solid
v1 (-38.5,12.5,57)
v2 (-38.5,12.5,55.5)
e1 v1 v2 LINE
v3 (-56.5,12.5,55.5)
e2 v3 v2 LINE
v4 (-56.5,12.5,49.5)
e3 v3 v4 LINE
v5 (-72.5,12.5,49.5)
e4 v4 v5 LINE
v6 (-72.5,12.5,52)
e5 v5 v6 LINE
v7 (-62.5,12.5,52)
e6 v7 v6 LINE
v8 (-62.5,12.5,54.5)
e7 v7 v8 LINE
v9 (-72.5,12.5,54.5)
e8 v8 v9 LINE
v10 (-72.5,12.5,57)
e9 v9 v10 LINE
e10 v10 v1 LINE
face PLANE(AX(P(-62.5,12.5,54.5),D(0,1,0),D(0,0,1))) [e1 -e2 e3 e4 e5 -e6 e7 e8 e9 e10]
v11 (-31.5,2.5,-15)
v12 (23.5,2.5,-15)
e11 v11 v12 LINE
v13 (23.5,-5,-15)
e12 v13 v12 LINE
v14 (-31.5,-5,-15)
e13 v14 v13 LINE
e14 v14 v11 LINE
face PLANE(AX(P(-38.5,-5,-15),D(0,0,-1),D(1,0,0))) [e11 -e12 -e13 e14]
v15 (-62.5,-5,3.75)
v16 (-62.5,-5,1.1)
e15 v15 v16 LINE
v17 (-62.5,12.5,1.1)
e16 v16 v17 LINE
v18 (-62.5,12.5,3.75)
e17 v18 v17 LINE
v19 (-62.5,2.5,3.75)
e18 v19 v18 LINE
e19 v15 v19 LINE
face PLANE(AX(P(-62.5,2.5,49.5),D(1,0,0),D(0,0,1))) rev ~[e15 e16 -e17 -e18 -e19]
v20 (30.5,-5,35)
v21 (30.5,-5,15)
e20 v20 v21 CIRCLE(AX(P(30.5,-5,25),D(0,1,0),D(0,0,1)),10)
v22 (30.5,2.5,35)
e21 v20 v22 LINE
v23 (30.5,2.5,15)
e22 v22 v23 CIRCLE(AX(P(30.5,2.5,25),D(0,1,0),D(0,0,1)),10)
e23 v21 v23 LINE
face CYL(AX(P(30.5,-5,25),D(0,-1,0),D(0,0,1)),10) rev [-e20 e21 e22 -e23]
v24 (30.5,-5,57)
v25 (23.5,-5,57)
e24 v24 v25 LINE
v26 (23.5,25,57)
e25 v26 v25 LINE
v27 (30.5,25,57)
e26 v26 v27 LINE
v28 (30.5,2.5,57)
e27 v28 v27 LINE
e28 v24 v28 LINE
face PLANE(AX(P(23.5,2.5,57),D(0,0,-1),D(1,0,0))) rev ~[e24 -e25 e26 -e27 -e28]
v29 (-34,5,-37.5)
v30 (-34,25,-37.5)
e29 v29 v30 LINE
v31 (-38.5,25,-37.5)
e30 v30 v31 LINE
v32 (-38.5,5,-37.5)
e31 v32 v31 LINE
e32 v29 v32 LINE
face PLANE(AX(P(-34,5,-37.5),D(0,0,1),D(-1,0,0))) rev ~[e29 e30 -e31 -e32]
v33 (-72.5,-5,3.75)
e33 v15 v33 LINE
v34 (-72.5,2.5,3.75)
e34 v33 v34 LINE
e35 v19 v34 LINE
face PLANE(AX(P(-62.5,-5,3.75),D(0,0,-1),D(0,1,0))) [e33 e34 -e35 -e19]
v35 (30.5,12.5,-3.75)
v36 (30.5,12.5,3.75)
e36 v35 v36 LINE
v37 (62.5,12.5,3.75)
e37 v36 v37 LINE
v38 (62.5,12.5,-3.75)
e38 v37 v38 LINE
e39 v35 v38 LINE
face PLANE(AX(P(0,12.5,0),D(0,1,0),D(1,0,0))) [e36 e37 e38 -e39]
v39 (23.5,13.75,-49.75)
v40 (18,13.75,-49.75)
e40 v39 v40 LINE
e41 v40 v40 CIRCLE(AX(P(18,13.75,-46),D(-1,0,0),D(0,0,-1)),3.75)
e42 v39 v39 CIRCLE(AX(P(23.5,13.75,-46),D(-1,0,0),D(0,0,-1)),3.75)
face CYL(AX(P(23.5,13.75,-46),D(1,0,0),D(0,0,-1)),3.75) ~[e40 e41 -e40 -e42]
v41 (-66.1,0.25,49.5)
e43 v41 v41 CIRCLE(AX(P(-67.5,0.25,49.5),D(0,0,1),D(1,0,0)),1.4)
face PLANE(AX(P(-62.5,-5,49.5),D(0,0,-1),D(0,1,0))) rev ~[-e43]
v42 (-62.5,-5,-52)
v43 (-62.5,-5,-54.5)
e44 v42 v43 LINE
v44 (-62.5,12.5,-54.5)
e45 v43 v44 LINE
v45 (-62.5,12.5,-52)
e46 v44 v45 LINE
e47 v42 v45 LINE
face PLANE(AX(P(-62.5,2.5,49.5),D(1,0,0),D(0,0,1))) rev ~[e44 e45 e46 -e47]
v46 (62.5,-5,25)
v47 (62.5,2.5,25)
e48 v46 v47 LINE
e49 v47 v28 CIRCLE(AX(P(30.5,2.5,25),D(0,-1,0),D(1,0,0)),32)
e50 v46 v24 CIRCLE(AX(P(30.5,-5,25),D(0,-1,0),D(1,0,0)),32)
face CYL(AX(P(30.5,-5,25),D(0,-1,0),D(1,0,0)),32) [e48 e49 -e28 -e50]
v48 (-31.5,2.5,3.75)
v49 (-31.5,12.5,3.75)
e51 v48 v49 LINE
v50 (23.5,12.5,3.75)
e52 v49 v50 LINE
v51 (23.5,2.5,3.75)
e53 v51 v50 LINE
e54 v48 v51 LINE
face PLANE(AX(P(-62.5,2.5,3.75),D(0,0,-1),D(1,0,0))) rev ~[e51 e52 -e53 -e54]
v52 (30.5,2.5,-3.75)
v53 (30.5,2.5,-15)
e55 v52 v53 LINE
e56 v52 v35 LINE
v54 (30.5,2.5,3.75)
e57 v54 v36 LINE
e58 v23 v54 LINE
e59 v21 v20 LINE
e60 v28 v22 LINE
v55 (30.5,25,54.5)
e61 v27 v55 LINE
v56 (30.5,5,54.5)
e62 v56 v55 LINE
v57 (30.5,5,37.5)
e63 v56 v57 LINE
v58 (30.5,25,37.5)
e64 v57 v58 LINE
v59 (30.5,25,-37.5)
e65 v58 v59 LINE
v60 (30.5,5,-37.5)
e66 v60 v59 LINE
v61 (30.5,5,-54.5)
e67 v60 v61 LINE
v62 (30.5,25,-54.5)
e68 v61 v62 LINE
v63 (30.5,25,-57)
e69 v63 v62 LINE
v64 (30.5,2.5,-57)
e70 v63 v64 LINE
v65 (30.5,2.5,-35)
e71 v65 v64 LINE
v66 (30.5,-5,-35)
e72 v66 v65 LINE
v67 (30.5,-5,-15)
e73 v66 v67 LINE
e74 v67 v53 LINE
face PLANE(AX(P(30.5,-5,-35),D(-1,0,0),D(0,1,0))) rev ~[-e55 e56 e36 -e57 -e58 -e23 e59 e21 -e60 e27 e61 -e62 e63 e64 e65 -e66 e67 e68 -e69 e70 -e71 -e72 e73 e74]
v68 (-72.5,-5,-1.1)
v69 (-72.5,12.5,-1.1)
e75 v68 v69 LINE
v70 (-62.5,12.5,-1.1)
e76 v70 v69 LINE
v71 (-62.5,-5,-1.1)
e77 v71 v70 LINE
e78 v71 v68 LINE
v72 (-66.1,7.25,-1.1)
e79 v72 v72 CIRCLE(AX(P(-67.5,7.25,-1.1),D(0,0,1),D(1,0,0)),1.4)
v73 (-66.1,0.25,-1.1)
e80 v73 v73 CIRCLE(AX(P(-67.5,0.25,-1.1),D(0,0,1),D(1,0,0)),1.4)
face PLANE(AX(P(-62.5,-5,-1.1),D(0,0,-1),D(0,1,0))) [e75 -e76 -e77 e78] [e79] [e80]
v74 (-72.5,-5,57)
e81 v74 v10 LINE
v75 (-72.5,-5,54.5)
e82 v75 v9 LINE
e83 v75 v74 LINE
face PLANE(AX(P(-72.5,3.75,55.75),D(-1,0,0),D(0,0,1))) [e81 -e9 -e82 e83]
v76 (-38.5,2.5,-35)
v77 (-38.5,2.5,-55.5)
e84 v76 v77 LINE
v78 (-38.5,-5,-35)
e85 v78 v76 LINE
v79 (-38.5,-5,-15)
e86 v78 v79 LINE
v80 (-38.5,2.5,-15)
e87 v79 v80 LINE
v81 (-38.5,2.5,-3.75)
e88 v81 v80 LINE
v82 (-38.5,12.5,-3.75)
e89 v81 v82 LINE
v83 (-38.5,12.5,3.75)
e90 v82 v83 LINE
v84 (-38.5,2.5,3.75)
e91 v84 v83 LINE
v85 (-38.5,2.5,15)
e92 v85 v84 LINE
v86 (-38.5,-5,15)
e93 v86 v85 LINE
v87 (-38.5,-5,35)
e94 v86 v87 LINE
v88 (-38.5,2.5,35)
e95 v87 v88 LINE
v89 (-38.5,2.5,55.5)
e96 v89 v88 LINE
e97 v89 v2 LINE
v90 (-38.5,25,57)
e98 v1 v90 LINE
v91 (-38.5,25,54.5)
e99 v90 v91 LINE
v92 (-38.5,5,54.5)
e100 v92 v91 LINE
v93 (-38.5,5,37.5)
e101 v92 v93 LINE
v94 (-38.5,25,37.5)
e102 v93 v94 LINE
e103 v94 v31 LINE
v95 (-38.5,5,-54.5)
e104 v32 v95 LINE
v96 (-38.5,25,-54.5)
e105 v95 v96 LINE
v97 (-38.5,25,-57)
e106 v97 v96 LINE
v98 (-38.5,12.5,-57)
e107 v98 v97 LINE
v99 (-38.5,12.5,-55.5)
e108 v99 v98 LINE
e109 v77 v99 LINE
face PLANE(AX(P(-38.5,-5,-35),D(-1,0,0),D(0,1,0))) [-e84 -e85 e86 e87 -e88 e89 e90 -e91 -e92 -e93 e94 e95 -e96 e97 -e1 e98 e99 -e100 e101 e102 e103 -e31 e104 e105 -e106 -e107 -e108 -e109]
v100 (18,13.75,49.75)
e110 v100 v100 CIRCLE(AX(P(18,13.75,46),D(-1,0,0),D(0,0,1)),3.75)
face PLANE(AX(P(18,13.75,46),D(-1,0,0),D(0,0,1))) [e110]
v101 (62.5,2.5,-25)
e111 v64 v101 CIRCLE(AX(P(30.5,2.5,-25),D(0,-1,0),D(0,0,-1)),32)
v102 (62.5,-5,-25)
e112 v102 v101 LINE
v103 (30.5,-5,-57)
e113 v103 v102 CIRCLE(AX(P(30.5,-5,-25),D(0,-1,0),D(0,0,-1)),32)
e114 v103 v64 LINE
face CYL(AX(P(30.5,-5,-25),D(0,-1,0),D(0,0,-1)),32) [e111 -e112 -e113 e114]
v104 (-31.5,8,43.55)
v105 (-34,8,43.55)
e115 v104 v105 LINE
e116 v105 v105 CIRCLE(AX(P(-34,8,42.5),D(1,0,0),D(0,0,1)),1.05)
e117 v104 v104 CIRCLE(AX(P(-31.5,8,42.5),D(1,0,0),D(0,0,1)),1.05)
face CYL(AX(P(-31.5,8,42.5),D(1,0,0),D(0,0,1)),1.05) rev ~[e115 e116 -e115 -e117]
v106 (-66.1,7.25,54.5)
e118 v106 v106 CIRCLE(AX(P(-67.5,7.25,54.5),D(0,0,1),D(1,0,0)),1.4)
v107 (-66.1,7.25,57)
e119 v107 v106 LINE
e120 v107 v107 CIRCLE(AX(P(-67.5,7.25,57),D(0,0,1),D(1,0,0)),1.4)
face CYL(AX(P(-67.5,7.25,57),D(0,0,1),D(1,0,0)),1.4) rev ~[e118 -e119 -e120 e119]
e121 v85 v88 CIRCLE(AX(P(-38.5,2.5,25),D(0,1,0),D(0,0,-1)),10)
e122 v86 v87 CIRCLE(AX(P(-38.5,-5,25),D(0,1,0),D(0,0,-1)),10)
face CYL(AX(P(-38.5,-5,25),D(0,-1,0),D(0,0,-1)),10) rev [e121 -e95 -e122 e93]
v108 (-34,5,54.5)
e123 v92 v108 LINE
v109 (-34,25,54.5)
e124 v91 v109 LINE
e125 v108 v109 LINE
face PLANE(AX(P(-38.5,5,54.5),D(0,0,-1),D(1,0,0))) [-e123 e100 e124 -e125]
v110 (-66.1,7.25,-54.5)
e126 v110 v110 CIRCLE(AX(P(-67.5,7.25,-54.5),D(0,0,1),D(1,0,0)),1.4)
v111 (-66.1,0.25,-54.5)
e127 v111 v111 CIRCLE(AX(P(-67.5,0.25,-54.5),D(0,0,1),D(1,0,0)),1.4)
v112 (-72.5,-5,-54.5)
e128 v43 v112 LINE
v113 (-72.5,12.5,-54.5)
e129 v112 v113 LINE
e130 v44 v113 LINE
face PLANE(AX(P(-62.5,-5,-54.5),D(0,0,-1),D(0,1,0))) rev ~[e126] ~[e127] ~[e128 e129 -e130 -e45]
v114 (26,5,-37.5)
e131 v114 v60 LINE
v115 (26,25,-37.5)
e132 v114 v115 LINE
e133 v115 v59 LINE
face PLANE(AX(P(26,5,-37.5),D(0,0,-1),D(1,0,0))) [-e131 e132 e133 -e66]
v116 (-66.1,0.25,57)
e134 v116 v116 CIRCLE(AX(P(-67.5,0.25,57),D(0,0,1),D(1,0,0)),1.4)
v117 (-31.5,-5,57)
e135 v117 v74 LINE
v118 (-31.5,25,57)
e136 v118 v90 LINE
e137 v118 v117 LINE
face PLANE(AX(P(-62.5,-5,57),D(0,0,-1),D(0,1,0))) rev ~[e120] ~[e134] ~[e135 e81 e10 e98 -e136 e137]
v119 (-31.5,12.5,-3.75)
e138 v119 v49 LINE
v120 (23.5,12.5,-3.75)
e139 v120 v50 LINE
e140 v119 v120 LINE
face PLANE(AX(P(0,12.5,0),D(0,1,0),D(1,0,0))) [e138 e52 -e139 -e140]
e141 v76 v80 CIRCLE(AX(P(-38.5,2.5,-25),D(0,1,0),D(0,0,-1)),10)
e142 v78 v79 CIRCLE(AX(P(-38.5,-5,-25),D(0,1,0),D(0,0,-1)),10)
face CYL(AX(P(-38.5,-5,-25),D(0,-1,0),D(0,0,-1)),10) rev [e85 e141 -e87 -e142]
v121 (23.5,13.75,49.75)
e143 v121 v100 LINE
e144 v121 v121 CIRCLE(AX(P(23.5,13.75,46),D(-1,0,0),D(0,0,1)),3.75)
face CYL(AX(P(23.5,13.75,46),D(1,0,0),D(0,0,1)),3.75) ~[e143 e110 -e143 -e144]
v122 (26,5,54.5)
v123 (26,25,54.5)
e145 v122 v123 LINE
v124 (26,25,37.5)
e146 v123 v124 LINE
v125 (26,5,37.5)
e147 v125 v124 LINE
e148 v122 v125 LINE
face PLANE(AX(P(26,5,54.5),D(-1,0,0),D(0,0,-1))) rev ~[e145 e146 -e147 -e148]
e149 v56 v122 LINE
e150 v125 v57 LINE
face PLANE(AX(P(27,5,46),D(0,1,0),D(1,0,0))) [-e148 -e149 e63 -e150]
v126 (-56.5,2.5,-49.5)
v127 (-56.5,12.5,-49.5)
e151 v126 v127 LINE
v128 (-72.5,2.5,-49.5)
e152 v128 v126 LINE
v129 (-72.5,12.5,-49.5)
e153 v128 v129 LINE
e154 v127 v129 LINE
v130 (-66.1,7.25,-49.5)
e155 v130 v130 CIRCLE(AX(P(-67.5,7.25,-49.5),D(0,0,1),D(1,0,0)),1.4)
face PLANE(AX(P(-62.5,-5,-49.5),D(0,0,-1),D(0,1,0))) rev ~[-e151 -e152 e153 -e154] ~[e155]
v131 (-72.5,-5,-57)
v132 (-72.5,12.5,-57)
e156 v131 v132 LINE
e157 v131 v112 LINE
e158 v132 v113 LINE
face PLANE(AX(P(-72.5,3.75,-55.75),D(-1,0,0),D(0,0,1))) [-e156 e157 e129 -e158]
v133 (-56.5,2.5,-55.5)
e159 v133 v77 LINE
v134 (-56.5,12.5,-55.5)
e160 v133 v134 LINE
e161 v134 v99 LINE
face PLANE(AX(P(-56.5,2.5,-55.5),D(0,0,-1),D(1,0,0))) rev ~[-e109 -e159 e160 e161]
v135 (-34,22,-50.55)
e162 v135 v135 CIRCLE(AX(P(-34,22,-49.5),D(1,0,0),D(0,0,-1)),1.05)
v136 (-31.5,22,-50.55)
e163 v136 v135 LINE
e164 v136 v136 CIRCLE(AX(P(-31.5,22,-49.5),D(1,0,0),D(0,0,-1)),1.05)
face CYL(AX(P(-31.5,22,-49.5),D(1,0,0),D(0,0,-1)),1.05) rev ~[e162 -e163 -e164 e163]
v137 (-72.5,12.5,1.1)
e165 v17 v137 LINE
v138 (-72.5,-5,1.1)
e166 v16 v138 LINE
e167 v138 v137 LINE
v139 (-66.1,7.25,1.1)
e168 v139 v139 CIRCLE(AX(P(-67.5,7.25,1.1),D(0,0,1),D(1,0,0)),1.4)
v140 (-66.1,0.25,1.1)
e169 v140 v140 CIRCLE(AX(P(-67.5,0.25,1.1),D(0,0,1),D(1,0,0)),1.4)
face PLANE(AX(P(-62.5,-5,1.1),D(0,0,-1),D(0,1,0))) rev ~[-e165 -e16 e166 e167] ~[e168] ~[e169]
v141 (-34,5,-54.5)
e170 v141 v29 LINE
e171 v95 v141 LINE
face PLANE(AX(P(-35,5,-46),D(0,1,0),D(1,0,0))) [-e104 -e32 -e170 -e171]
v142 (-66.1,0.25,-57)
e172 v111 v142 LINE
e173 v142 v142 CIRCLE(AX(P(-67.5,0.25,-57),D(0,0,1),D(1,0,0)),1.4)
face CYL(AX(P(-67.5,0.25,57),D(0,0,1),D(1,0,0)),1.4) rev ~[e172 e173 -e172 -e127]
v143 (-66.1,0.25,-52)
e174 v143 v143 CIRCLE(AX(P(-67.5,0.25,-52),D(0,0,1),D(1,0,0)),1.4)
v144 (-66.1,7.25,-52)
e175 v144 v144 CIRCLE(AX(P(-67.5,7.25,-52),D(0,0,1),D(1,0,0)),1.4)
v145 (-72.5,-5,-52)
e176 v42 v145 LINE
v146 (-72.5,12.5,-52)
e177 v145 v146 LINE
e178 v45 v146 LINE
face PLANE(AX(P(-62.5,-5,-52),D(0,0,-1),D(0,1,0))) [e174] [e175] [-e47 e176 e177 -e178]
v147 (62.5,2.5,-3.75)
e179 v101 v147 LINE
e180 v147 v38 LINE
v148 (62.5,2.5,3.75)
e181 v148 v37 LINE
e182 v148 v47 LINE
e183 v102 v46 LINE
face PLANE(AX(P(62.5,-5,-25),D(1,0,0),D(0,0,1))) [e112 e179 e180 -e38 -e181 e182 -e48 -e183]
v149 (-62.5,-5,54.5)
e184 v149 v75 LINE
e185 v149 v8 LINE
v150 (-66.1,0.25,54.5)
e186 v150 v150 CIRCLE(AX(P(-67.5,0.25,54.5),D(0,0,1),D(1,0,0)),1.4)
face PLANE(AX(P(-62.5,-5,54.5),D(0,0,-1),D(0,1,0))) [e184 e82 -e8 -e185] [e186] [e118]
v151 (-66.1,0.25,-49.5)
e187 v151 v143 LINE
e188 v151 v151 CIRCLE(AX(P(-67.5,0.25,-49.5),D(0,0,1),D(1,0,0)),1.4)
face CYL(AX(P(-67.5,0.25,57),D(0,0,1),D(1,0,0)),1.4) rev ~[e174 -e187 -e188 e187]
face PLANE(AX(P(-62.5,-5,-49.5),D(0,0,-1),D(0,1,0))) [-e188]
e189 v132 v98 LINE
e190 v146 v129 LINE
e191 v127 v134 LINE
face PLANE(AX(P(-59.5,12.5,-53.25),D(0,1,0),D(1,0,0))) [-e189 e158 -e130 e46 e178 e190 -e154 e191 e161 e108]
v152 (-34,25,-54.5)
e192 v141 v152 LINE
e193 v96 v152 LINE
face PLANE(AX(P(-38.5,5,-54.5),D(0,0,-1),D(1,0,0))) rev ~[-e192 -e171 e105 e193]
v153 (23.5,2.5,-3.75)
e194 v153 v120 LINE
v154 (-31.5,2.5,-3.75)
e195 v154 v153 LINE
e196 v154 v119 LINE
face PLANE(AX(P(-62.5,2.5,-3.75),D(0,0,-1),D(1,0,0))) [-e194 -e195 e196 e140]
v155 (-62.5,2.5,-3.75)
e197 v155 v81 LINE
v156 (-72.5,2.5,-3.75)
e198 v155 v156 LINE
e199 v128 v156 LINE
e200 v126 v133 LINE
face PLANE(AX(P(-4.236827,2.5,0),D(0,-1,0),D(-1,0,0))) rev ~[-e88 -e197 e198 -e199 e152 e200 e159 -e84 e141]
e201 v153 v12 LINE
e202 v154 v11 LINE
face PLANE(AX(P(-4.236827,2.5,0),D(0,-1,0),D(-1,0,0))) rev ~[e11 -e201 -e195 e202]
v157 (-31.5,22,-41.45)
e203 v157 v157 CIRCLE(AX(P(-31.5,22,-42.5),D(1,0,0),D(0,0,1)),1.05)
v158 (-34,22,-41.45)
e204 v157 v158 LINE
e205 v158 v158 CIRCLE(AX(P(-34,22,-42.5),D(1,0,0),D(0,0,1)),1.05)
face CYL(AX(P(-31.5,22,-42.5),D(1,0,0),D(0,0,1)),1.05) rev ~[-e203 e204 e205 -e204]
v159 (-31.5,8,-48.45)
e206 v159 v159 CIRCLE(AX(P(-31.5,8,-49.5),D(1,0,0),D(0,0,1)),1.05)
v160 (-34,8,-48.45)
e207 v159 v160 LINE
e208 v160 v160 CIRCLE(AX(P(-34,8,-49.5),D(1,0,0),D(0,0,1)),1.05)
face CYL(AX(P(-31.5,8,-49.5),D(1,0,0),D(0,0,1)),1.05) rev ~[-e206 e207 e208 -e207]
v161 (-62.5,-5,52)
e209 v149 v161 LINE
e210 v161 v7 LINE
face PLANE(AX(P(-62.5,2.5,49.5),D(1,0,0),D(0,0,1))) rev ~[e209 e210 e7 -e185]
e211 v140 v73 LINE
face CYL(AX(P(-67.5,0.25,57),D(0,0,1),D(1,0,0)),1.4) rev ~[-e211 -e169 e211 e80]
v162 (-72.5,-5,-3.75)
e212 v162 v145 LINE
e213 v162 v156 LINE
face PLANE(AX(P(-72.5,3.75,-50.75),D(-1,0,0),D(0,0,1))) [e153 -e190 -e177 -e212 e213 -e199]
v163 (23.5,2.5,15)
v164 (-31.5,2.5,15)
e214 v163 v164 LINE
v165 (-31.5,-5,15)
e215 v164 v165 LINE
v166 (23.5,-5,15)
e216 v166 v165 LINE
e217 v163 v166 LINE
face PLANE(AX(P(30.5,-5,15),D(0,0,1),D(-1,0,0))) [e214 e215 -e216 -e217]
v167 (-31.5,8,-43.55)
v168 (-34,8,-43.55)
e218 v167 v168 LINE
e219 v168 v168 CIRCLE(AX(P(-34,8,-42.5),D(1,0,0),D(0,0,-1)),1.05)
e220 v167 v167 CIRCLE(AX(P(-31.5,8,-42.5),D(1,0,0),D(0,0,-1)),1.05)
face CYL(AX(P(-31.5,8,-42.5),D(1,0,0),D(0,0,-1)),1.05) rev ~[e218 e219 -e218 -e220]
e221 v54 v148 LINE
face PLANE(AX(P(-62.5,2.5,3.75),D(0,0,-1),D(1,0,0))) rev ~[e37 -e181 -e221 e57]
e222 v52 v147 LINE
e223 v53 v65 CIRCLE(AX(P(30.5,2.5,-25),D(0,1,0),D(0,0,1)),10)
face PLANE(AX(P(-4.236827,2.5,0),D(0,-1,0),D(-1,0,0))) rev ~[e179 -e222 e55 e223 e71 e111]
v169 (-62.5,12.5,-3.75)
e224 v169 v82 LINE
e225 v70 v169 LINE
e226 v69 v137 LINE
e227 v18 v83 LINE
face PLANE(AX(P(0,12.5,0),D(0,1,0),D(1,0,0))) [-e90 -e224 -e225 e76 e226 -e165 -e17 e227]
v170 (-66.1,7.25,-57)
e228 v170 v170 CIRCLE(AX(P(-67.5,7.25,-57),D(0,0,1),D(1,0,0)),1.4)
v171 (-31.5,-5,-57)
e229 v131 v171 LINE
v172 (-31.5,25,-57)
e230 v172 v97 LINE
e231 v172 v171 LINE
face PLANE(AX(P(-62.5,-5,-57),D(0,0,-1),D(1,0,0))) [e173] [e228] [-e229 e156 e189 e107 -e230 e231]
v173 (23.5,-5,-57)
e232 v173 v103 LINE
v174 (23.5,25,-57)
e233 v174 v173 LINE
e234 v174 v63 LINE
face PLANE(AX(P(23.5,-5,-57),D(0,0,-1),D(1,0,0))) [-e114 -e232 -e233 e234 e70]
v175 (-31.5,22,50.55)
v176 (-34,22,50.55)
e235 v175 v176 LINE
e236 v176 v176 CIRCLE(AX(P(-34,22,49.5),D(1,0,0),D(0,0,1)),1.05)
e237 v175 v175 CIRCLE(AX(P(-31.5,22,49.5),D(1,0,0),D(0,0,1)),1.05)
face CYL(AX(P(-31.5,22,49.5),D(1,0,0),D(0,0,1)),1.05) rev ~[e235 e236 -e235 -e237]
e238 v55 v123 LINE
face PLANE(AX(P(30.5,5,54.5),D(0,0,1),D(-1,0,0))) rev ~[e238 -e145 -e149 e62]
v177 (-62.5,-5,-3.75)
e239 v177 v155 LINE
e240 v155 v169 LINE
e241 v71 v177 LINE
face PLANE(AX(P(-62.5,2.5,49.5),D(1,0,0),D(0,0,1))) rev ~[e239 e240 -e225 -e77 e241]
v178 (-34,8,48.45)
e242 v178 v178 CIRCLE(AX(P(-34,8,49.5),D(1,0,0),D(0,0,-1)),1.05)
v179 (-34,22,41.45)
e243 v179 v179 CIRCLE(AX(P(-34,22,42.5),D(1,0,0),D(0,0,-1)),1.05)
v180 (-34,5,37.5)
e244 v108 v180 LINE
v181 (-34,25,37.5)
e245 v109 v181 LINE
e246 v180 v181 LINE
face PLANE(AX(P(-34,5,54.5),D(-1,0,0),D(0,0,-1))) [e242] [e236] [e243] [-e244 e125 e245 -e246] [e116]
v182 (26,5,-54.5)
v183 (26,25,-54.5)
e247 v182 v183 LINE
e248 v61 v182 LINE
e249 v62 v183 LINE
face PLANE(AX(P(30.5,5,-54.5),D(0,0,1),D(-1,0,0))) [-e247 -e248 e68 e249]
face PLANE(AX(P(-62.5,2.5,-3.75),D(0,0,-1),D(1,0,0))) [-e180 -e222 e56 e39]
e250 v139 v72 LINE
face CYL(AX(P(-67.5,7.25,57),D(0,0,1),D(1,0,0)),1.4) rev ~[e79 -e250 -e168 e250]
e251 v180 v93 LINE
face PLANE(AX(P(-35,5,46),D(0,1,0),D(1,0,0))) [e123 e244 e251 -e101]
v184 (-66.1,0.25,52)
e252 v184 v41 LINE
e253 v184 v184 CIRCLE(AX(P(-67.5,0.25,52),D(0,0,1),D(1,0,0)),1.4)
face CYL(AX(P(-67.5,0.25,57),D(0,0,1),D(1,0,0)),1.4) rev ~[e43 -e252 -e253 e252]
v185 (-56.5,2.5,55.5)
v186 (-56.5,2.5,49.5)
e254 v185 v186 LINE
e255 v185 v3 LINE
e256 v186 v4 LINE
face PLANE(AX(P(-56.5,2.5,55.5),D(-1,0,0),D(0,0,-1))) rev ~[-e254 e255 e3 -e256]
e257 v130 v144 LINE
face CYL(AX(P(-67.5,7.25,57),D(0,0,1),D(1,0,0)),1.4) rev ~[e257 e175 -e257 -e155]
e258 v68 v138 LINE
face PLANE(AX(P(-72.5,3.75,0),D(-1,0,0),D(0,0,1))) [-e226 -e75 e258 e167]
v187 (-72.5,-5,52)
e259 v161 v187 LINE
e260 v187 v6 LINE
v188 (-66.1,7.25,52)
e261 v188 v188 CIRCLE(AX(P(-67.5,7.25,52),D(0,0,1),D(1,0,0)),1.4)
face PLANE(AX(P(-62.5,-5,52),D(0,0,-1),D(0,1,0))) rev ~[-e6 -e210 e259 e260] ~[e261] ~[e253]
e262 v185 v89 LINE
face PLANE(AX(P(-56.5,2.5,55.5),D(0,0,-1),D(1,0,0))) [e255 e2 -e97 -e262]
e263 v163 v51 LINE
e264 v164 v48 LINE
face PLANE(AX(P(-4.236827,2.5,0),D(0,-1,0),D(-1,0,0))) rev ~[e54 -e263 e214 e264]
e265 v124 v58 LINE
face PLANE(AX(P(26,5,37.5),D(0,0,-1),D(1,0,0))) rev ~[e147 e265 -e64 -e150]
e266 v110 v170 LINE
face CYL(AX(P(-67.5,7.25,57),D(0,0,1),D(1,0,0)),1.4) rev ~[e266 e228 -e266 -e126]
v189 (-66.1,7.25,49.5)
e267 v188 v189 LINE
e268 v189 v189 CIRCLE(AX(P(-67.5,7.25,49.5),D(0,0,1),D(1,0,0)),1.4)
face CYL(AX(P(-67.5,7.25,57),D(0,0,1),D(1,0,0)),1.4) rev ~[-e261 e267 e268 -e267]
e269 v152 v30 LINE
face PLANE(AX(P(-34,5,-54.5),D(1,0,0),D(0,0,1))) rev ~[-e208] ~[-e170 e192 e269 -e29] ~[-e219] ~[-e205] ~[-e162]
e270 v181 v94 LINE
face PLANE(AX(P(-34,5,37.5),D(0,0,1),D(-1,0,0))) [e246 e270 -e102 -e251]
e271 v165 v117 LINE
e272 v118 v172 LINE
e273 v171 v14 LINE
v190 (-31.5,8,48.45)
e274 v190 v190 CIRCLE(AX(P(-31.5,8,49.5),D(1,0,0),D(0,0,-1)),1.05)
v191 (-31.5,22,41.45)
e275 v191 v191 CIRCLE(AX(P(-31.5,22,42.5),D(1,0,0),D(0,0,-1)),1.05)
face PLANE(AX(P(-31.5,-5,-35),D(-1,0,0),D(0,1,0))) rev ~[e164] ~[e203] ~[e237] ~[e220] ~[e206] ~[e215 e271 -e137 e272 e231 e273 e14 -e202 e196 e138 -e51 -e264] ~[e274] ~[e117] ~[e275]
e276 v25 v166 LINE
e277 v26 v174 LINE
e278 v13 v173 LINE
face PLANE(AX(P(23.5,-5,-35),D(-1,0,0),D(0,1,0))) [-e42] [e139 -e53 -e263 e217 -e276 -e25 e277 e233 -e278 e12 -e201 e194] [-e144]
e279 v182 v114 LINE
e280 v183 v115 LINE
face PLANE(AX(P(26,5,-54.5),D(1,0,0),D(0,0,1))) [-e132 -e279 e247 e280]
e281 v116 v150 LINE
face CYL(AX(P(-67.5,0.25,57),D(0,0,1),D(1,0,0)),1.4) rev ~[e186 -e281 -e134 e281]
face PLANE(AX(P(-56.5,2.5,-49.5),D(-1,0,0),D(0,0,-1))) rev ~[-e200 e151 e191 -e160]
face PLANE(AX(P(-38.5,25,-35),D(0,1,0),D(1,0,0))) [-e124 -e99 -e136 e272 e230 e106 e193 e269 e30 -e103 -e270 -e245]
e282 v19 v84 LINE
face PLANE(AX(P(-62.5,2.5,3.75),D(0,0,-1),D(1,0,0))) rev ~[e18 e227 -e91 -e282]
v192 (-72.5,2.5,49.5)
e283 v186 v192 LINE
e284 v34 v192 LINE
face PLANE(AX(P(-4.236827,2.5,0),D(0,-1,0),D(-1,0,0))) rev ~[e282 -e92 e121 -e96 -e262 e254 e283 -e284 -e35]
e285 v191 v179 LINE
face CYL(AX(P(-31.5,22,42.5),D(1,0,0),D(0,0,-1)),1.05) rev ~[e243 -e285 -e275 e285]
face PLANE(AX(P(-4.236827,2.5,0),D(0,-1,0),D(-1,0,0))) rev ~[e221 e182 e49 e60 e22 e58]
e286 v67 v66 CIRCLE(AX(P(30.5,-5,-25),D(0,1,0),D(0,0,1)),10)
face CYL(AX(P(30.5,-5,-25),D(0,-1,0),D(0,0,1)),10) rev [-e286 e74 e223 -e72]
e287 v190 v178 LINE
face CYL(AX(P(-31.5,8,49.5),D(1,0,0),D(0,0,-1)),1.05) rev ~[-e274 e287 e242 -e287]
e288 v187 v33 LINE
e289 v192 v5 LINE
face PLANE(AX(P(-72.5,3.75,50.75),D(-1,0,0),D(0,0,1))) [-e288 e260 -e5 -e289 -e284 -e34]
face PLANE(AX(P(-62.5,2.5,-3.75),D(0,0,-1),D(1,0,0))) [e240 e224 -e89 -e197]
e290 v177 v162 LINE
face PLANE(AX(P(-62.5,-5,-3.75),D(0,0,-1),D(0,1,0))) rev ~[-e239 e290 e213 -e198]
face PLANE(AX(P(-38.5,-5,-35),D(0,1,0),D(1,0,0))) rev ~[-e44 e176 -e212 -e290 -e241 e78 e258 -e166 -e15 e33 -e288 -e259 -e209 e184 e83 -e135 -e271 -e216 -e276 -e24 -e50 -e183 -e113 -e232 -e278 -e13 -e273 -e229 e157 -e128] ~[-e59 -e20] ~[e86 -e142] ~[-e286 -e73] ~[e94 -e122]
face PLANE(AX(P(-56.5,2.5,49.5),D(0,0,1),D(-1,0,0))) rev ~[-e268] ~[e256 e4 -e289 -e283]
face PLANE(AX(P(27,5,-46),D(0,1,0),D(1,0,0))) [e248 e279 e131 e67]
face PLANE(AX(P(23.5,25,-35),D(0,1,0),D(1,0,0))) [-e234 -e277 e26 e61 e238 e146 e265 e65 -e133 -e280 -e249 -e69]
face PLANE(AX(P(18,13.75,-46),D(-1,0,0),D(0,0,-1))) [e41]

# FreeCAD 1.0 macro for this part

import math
import FreeCAD as App
import Part
import Sketcher
from FreeCAD import Vector


def add_polygon(sketch, points):
    """Adds a closed chain of lines whose ends are joined by coincident constraints."""
    first, n = sketch.GeometryCount, len(points)
    for a, b in zip(points, points[1:] + points[:1]):
        sketch.addGeometry(Part.LineSegment(App.Vector(*a, 0), App.Vector(*b, 0)), False)
    for i in range(n):
        sketch.addConstraint(Sketcher.Constraint("Coincident", first + i, 2, first + (i + 1) % n, 1))

doc = App.newDocument("Part")
body = doc.addObject("PartDesign::Body", "Body")

sketch1 = body.newObject("Sketcher::SketchObject", "Sketch")
sketch1.AttachmentSupport = (doc.getObject("XZ_Plane"), [""])
sketch1.MapMode = "FlatFace"
sketch1.addGeometry([
    Part.LineSegment(Vector(62, 25, 0), Vector(62, -25, 0)),
    Part.ArcOfCircle(Part.Circle(Vector(30, -25, 0), Vector(0, 0, 1), 32), math.radians(-90), math.radians(0)),
    Part.LineSegment(Vector(30, -57, 0), Vector(24, -57, 0)),
    Part.LineSegment(Vector(24, -57, 0), Vector(24, -35, 0)),
    Part.LineSegment(Vector(24, -35, 0), Vector(30, -35, 0)),
    Part.ArcOfCircle(Part.Circle(Vector(30, -25, 0), Vector(0, 0, 1), 10), math.radians(-90), math.radians(90)),
    Part.LineSegment(Vector(30, -15, 0), Vector(-38, -15, 0)),
    Part.ArcOfCircle(Part.Circle(Vector(-38, -25, 0), Vector(0, 0, 1), 10), math.radians(90), math.radians(270)),
    Part.LineSegment(Vector(-38, -35, 0), Vector(-32, -35, 0)),
    Part.LineSegment(Vector(-32, -35, 0), Vector(-32, -57, 0)),
    Part.LineSegment(Vector(-32, -57, 0), Vector(-62, -57, 0)),
    Part.LineSegment(Vector(-62, -57, 0), Vector(-62, 57, 0)),
    Part.LineSegment(Vector(-62, 57, 0), Vector(-32, 57, 0)),
    Part.LineSegment(Vector(-32, 57, 0), Vector(-32, 35, 0)),
    Part.LineSegment(Vector(-32, 35, 0), Vector(-38, 35, 0)),
    Part.ArcOfCircle(Part.Circle(Vector(-38, 25, 0), Vector(0, 0, 1), 10), math.radians(90), math.radians(270)),
    Part.LineSegment(Vector(-38, 15, 0), Vector(30, 15, 0)),
    Part.ArcOfCircle(Part.Circle(Vector(30, 25, 0), Vector(0, 0, 1), 10), math.radians(-90), math.radians(90)),
    Part.LineSegment(Vector(30, 35, 0), Vector(24, 35, 0)),
    Part.LineSegment(Vector(24, 35, 0), Vector(24, 57, 0)),
    Part.LineSegment(Vector(24, 57, 0), Vector(30, 57, 0)),
    Part.ArcOfCircle(Part.Circle(Vector(30, 25, 0), Vector(0, 0, 1), 32), math.radians(0), math.radians(90)),
], False)
sketch1.addConstraint([
    Sketcher.Constraint("Tangent", 0, 2, 1, 2),
    Sketcher.Constraint("Tangent", 1, 1, 2, 1),
    Sketcher.Constraint("Coincident", 2, 2, 3, 1),
    Sketcher.Constraint("Coincident", 3, 2, 4, 1),
    Sketcher.Constraint("Tangent", 4, 2, 5, 1),
    Sketcher.Constraint("Tangent", 5, 2, 6, 1),
    Sketcher.Constraint("Tangent", 6, 2, 7, 1),
    Sketcher.Constraint("Tangent", 7, 2, 8, 1),
    Sketcher.Constraint("Coincident", 8, 2, 9, 1),
    Sketcher.Constraint("Coincident", 9, 2, 10, 1),
    Sketcher.Constraint("Coincident", 10, 2, 11, 1),
    Sketcher.Constraint("Coincident", 11, 2, 12, 1),
    Sketcher.Constraint("Coincident", 12, 2, 13, 1),
    Sketcher.Constraint("Coincident", 13, 2, 14, 1),
    Sketcher.Constraint("Tangent", 14, 2, 15, 1),
    Sketcher.Constraint("Tangent", 15, 2, 16, 1),
    Sketcher.Constraint("Tangent", 16, 2, 17, 1),
    Sketcher.Constraint("Tangent", 17, 2, 18, 1),
    Sketcher.Constraint("Coincident", 18, 2, 19, 1),
    Sketcher.Constraint("Coincident", 19, 2, 20, 1),
    Sketcher.Constraint("Tangent", 20, 2, 21, 2),
    Sketcher.Constraint("Tangent", 21, 1, 0, 1),
    Sketcher.Constraint("Vertical", 0),
    Sketcher.Constraint("Horizontal", 2),
    Sketcher.Constraint("Vertical", 3),
    Sketcher.Constraint("Horizontal", 4),
    Sketcher.Constraint("Horizontal", 6),
    Sketcher.Constraint("Horizontal", 8),
    Sketcher.Constraint("Vertical", 9),
    Sketcher.Constraint("Horizontal", 10),
    Sketcher.Constraint("Vertical", 11),
    Sketcher.Constraint("Horizontal", 12),
    Sketcher.Constraint("Vertical", 13),
    Sketcher.Constraint("Horizontal", 14),
    Sketcher.Constraint("Horizontal", 16),
    Sketcher.Constraint("Horizontal", 18),
    Sketcher.Constraint("Vertical", 19),
    Sketcher.Constraint("Horizontal", 20),
    Sketcher.Constraint("Coincident", 5, 3, 1, 3),
    Sketcher.Constraint("Coincident", 21, 3, 17, 3),
    Sketcher.Constraint("Equal", 5, 7),
    Sketcher.Constraint("Equal", 7, 15),
    Sketcher.Constraint("Equal", 15, 17),
    Sketcher.Constraint("Equal", 1, 21),
    Sketcher.Constraint("Symmetric", 7, 3, 15, 3, -1),
    Sketcher.Constraint("Symmetric", 9, 2, 12, 2, -1),
    Sketcher.Constraint("Horizontal", 2, 2, 9, 2),
    Sketcher.Constraint("Vertical", 3, 2, 18, 2),
    Sketcher.Constraint("Equal", 4, 8),
    Sketcher.Constraint("Radius", 1, 32.0),
    Sketcher.Constraint("Radius", 5, 10.0),
    Sketcher.Constraint("DistanceX", 2, 2, 2, 1, 7.0),
    Sketcher.Constraint("DistanceX", 6, 2, 6, 1, 69.0),
    Sketcher.Constraint("DistanceX", 10, 2, 10, 1, 31.0),
    Sketcher.Constraint("DistanceY", 0, 2, 0, 1, 50.0),
    Sketcher.Constraint("DistanceX", -1, 1, 1, 3, 30.5),
])
pad1 = body.newObject("PartDesign::Pad", "Pad")
pad1.Profile = sketch1
pad1.Type = "TwoLengths"
pad1.Length = 2.5
pad1.Length2 = 5
pad1.Reversed = True

sketch2 = body.newObject("Sketcher::SketchObject", "Sketch001")
sketch2.AttachmentSupport = (doc.getObject("XZ_Plane"), [""])
sketch2.MapMode = "FlatFace"
sketch2.AttachmentOffset = App.Placement(Vector(0, 0, -2.5), App.Rotation())
add_polygon(sketch2, [(-38, 35), (-38, 57), (-32, 57), (-32, 35)])
add_polygon(sketch2, [(24, 35), (24, 57), (30, 57), (30, 35)])
add_polygon(sketch2, [(24, -57), (24, -35), (30, -35), (30, -57)])
add_polygon(sketch2, [(-38, -57), (-38, -35), (-32, -35), (-32, -57)])
sketch2.addConstraint([
    Sketcher.Constraint("Vertical", 0),
    Sketcher.Constraint("Horizontal", 1),
    Sketcher.Constraint("Vertical", 2),
    Sketcher.Constraint("Horizontal", 3),
    Sketcher.Constraint("Vertical", 4),
    Sketcher.Constraint("Horizontal", 5),
    Sketcher.Constraint("Vertical", 6),
    Sketcher.Constraint("Horizontal", 7),
    Sketcher.Constraint("Vertical", 8),
    Sketcher.Constraint("Horizontal", 9),
    Sketcher.Constraint("Vertical", 10),
    Sketcher.Constraint("Horizontal", 11),
    Sketcher.Constraint("Vertical", 12),
    Sketcher.Constraint("Horizontal", 13),
    Sketcher.Constraint("Vertical", 14),
    Sketcher.Constraint("Horizontal", 15),
    Sketcher.Constraint("Symmetric", 7, 2, 8, 2, -1),
    Sketcher.Constraint("Symmetric", 5, 2, 10, 2, -1),
    Sketcher.Constraint("Symmetric", 3, 2, 12, 2, -1),
    Sketcher.Constraint("Symmetric", 1, 2, 14, 2, -1),
    Sketcher.Constraint("Horizontal", 1, 2, 4, 2),
    Sketcher.Constraint("Horizontal", 3, 2, 6, 2),
    Sketcher.Constraint("Equal", 3, 5),
    Sketcher.Constraint("DistanceX", 1, 1, 1, 2, 7.0),
    Sketcher.Constraint("DistanceY", 0, 1, 0, 2, 22.0),
    Sketcher.Constraint("DistanceY", -1, 1, 0, 2, 57.0),
    Sketcher.Constraint("DistanceX", 1, 2, 4, 2, 55.0),
    Sketcher.Constraint("DistanceX", 0, 2, -1, 1, 38.5),
])
pad2 = body.newObject("PartDesign::Pad", "Pad001")
pad2.Profile = sketch2
pad2.Length = 2.5
pad2.Reversed = True

sketch3 = body.newObject("Sketcher::SketchObject", "Sketch002")
sketch3.AttachmentSupport = (doc.getObject("XZ_Plane"), [""])
sketch3.MapMode = "FlatFace"
sketch3.AttachmentOffset = App.Placement(Vector(0, 0, -5), App.Rotation())
add_polygon(sketch3, [(-31.5, 35), (-38.5, 35), (-38.5, 37.5), (-34, 37.5), (-34, 54.5), (-38.5, 54.5), (-38.5, 57), (-31.5, 57)])
add_polygon(sketch3, [(30.5, 35), (23.5, 35), (23.5, 57), (30.5, 57), (30.5, 54.5), (26, 54.5), (26, 37.5), (30.5, 37.5)])
add_polygon(sketch3, [(30.5, -35), (30.5, -37.5), (26, -37.5), (26, -54.5), (30.5, -54.5), (30.5, -57), (23.5, -57), (23.5, -35)])
add_polygon(sketch3, [(-38.5, -37.5), (-38.5, -35), (-31.5, -35), (-31.5, -57), (-38.5, -57), (-38.5, -54.5), (-34, -54.5), (-34, -37.5)])
sketch3.addConstraint([
    Sketcher.Constraint("Horizontal", 0),
    Sketcher.Constraint("Vertical", 1),
    Sketcher.Constraint("Horizontal", 2),
    Sketcher.Constraint("Vertical", 3),
    Sketcher.Constraint("Horizontal", 4),
    Sketcher.Constraint("Vertical", 5),
    Sketcher.Constraint("Horizontal", 6),
    Sketcher.Constraint("Vertical", 7),
    Sketcher.Constraint("Horizontal", 8),
    Sketcher.Constraint("Vertical", 9),
    Sketcher.Constraint("Horizontal", 10),
    Sketcher.Constraint("Vertical", 11),
    Sketcher.Constraint("Horizontal", 12),
    Sketcher.Constraint("Vertical", 13),
    Sketcher.Constraint("Horizontal", 14),
    Sketcher.Constraint("Vertical", 15),
    Sketcher.Constraint("Vertical", 16),
    Sketcher.Constraint("Horizontal", 17),
    Sketcher.Constraint("Vertical", 18),
    Sketcher.Constraint("Horizontal", 19),
    Sketcher.Constraint("Vertical", 20),
    Sketcher.Constraint("Horizontal", 21),
    Sketcher.Constraint("Vertical", 22),
    Sketcher.Constraint("Horizontal", 23),
    Sketcher.Constraint("Vertical", 24),
    Sketcher.Constraint("Horizontal", 25),
    Sketcher.Constraint("Vertical", 26),
    Sketcher.Constraint("Horizontal", 27),
    Sketcher.Constraint("Vertical", 28),
    Sketcher.Constraint("Horizontal", 29),
    Sketcher.Constraint("Vertical", 30),
    Sketcher.Constraint("Horizontal", 31),
    Sketcher.Constraint("Symmetric", 14, 2, 16, 2, -1),
    Sketcher.Constraint("Symmetric", 12, 2, 18, 2, -1),
    Sketcher.Constraint("Symmetric", 10, 2, 20, 2, -1),
    Sketcher.Constraint("Symmetric", 8, 2, 22, 2, -1),
    Sketcher.Constraint("Symmetric", 0, 2, 24, 2, -1),
    Sketcher.Constraint("Symmetric", 6, 2, 26, 2, -1),
    Sketcher.Constraint("Symmetric", 4, 2, 28, 2, -1),
    Sketcher.Constraint("Symmetric", 2, 2, 30, 2, -1),
    Sketcher.Constraint("Horizontal", 7, 2, 8, 2),
    Sketcher.Constraint("Horizontal", 6, 2, 9, 2),
    Sketcher.Constraint("Horizontal", 4, 2, 11, 2),
    Sketcher.Constraint("Horizontal", 2, 2, 13, 2),
    Sketcher.Constraint("Vertical", 1, 2, 4, 2),
    Sketcher.Constraint("Vertical", 11, 2, 14, 2),
    Sketcher.Constraint("Equal", 6, 8),
    Sketcher.Constraint("Equal", 4, 12),
    Sketcher.Constraint("Equal", 1, 5),
    Sketcher.Constraint("DistanceX", 0, 2, 0, 1, 7.0),
    Sketcher.Constraint("DistanceY", 3, 1, 3, 2, 17.0),
    Sketcher.Constraint("DistanceY", 7, 2, 7, 1, 22.0),
    Sketcher.Constraint("DistanceX", 2, 1, 2, 2, 4.5),
    Sketcher.Constraint("DistanceY", -1, 1, 0, 2, 35.0),
    Sketcher.Constraint("DistanceX", 2, 2, -1, 1, 34.0),
    Sketcher.Constraint("DistanceX", -1, 1, 12, 2, 26.0),
])
pad3 = body.newObject("PartDesign::Pad", "Pad002")
pad3.Profile = sketch3
pad3.Length = 20
pad3.Reversed = True

sketch4 = body.newObject("Sketcher::SketchObject", "Sketch003")
sketch4.AttachmentSupport = (doc.getObject("YZ_Plane"), [""])
sketch4.MapMode = "FlatFace"
sketch4.AttachmentOffset = App.Placement(Vector(0, 0, 23.5), App.Rotation())
sketch4.addGeometry([
    Part.Circle(Vector(13.8, 46, 0), Vector(0, 0, 1), 3.8),
    Part.Circle(Vector(13.8, -46, 0), Vector(0, 0, 1), 3.8),
], False)
sketch4.addConstraint([
    Sketcher.Constraint("Equal", 0, 1),
    Sketcher.Constraint("Symmetric", 0, 3, 1, 3, -1),
    Sketcher.Constraint("Diameter", 0, 7.5),
    Sketcher.Constraint("DistanceY", -1, 1, 0, 3, 46.0),
    Sketcher.Constraint("DistanceX", -1, 1, 0, 3, 13.75),
])
pad4 = body.newObject("PartDesign::Pad", "Pad003")
pad4.Profile = sketch4
pad4.Length = 5.5
pad4.Reversed = True

sketch5 = body.newObject("Sketcher::SketchObject", "Sketch004")
sketch5.AttachmentSupport = (doc.getObject("YZ_Plane"), [""])
sketch5.MapMode = "FlatFace"
sketch5.AttachmentOffset = App.Placement(Vector(0, 0, -31.5), App.Rotation())
sketch5.addGeometry([
    Part.Circle(Vector(22, 42.5, 0), Vector(0, 0, 1), 1.1),
    Part.Circle(Vector(22, 49.5, 0), Vector(0, 0, 1), 1.1),
    Part.Circle(Vector(8, 49.5, 0), Vector(0, 0, 1), 1.1),
    Part.Circle(Vector(8, 42.5, 0), Vector(0, 0, 1), 1.1),
    Part.Circle(Vector(8, -42.5, 0), Vector(0, 0, 1), 1.1),
    Part.Circle(Vector(8, -49.5, 0), Vector(0, 0, 1), 1.1),
    Part.Circle(Vector(22, -49.5, 0), Vector(0, 0, 1), 1.1),
    Part.Circle(Vector(22, -42.5, 0), Vector(0, 0, 1), 1.1),
], False)
sketch5.addConstraint([
    Sketcher.Constraint("Equal", 0, 1),
    Sketcher.Constraint("Equal", 1, 2),
    Sketcher.Constraint("Equal", 2, 3),
    Sketcher.Constraint("Equal", 3, 4),
    Sketcher.Constraint("Equal", 4, 5),
    Sketcher.Constraint("Equal", 5, 6),
    Sketcher.Constraint("Equal", 6, 7),
    Sketcher.Constraint("Symmetric", 3, 3, 4, 3, -1),
    Sketcher.Constraint("Symmetric", 2, 3, 5, 3, -1),
    Sketcher.Constraint("Symmetric", 1, 3, 6, 3, -1),
    Sketcher.Constraint("Symmetric", 0, 3, 7, 3, -1),
    Sketcher.Constraint("Horizontal", 1, 3, 2, 3),
    Sketcher.Constraint("Horizontal", 0, 3, 3, 3),
    Sketcher.Constraint("Vertical", 0, 3, 1, 3),
    Sketcher.Constraint("Vertical", 2, 3, 3, 3),
    Sketcher.Constraint("Diameter", 0, 2.1),
    Sketcher.Constraint("DistanceX", -1, 1, 0, 3, 22.0),
    Sketcher.Constraint("DistanceX", -1, 1, 2, 3, 8.0),
    Sketcher.Constraint("DistanceY", 0, 3, 1, 3, 7.0),
    Sketcher.Constraint("DistanceY", 4, 3, 3, 3, 85.0),
])
pocket1 = body.newObject("PartDesign::Pocket", "Pocket")
pocket1.Profile = sketch5
pocket1.Length = 2.5

sketch6 = body.newObject("Sketcher::SketchObject", "Sketch005")
sketch6.AttachmentSupport = (doc.getObject("XZ_Plane"), [""])
sketch6.MapMode = "FlatFace"
sketch6.AttachmentOffset = App.Placement(Vector(0, 0, -2.5), App.Rotation())
add_polygon(sketch6, [(-62.5, -3.8), (-62.5, 3.8), (62.5, 3.8), (62.5, -3.8)])
add_polygon(sketch6, [(-56.5, 49.5), (-62.5, 49.5), (-62.5, 57), (-38.5, 57), (-38.5, 55.5), (-56.5, 55.5)])
add_polygon(sketch6, [(-62.5, -57), (-62.5, -49.5), (-56.5, -49.5), (-56.5, -55.5), (-38.5, -55.5), (-38.5, -57)])
sketch6.addConstraint([
    Sketcher.Constraint("Vertical", 0),
    Sketcher.Constraint("Horizontal", 1),
    Sketcher.Constraint("Vertical", 2),
    Sketcher.Constraint("Horizontal", 3),
    Sketcher.Constraint("Horizontal", 4),
    Sketcher.Constraint("Vertical", 5),
    Sketcher.Constraint("Horizontal", 6),
    Sketcher.Constraint("Vertical", 7),
    Sketcher.Constraint("Horizontal", 8),
    Sketcher.Constraint("Vertical", 9),
    Sketcher.Constraint("Vertical", 10),
    Sketcher.Constraint("Horizontal", 11),
    Sketcher.Constraint("Vertical", 12),
    Sketcher.Constraint("Horizontal", 13),
    Sketcher.Constraint("Vertical", 14),
    Sketcher.Constraint("Horizontal", 15),
    Sketcher.Constraint("Symmetric", 0, 2, 2, 2, -1, 1),
    Sketcher.Constraint("Symmetric", 4, 2, 10, 2, -1),
    Sketcher.Constraint("Symmetric", 8, 2, 12, 2, -1),
    Sketcher.Constraint("Symmetric", 6, 2, 14, 2, -1),
    Sketcher.Constraint("Vertical", 3, 2, 4, 2),
    Sketcher.Constraint("Equal", 2, 5),
    Sketcher.Constraint("Equal", 11, 9),
    Sketcher.Constraint("DistanceX", 1, 1, 1, 2, 125.0),
    Sketcher.Constraint("DistanceX", 4, 2, 4, 1, 6.0),
    Sketcher.Constraint("DistanceX", 6, 1, 6, 2, 24.0),
    Sketcher.Constraint("DistanceY", 0, 1, 0, 2, 7.5),
    Sketcher.Constraint("DistanceY", -1, 1, 5, 2, 57.0),
])
pad5 = body.newObject("PartDesign::Pad", "Pad004")
pad5.Profile = sketch6
pad5.Length = 10
pad5.Reversed = True

sketch7 = body.newObject("Sketcher::SketchObject", "Sketch006")
sketch7.AttachmentSupport = (doc.getObject("YZ_Plane"), [""])
sketch7.MapMode = "FlatFace"
sketch7.AttachmentOffset = App.Placement(Vector(0, 0, -62.5), App.Rotation())
add_polygon(sketch7, [(12.5, -1.1), (-5, -1.1), (-5, 1.1), (12.5, 1.1)])
add_polygon(sketch7, [(12.5, 54.5), (-5, 54.5), (-5, 57), (12.5, 57)])
add_polygon(sketch7, [(12.5, 49.5), (-5, 49.5), (-5, 52), (12.5, 52)])
add_polygon(sketch7, [(12.5, -52), (-5, -52), (-5, -49.5), (12.5, -49.5)])
add_polygon(sketch7, [(12.5, -57), (-5, -57), (-5, -54.5), (12.5, -54.5)])
sketch7.addConstraint([
    Sketcher.Constraint("Horizontal", 0),
    Sketcher.Constraint("Vertical", 1),
    Sketcher.Constraint("Horizontal", 2),
    Sketcher.Constraint("Vertical", 3),
    Sketcher.Constraint("Horizontal", 4),
    Sketcher.Constraint("Vertical", 5),
    Sketcher.Constraint("Horizontal", 6),
    Sketcher.Constraint("Vertical", 7),
    Sketcher.Constraint("Horizontal", 8),
    Sketcher.Constraint("Vertical", 9),
    Sketcher.Constraint("Horizontal", 10),
    Sketcher.Constraint("Vertical", 11),
    Sketcher.Constraint("Horizontal", 12),
    Sketcher.Constraint("Vertical", 13),
    Sketcher.Constraint("Horizontal", 14),
    Sketcher.Constraint("Vertical", 15),
    Sketcher.Constraint("Horizontal", 16),
    Sketcher.Constraint("Vertical", 17),
    Sketcher.Constraint("Horizontal", 18),
    Sketcher.Constraint("Vertical", 19),
    Sketcher.Constraint("Symmetric", 9, 2, 12, 2, -1),
    Sketcher.Constraint("Symmetric", 11, 2, 14, 2, -1),
    Sketcher.Constraint("Symmetric", 5, 2, 16, 2, -1),
    Sketcher.Constraint("Symmetric", 7, 2, 18, 2, -1),
    Sketcher.Constraint("Vertical", 1, 2, 4, 2),
    Sketcher.Constraint("Vertical", 3, 2, 6, 2),
    Sketcher.Constraint("Vertical", 5, 2, 8, 2),
    Sketcher.Constraint("Vertical", 7, 2, 10, 2),
    Sketcher.Constraint("Equal", 7, 9),
    Sketcher.Constraint("DistanceX", 0, 2, 0, 1, 17.5),
    Sketcher.Constraint("DistanceY", 1, 1, 1, 2, 2.2),
    Sketcher.Constraint("DistanceY", 5, 1, 5, 2, 2.5),
    Sketcher.Constraint("DistanceX", 0, 2, -1, 1, 5.0),
    Sketcher.Constraint("DistanceY", -1, 1, 5, 2, 57.0),
    Sketcher.Constraint("DistanceY", -1, 1, 9, 2, 52.0),
    Sketcher.Constraint("DistanceY", 0, 2, -1, 1, 1.1),
])
pad6 = body.newObject("PartDesign::Pad", "Pad005")
pad6.Profile = sketch7
pad6.Length = 10
pad6.Reversed = True

sketch8 = body.newObject("Sketcher::SketchObject", "Sketch007")
sketch8.AttachmentSupport = (doc.getObject("XY_Plane"), [""])
sketch8.MapMode = "FlatFace"
sketch8.AttachmentOffset = App.Placement(Vector(0, 0, 57), App.Rotation())
sketch8.addGeometry([
    Part.Circle(Vector(-67.5, 7.2, 0), Vector(0, 0, 1), 1.4),
    Part.Circle(Vector(-67.5, 0.2, 0), Vector(0, 0, 1), 1.4),
], False)
sketch8.addConstraint([
    Sketcher.Constraint("Equal", 0, 1),
    Sketcher.Constraint("Vertical", 0, 3, 1, 3),
    Sketcher.Constraint("Diameter", 0, 2.8),
    Sketcher.Constraint("DistanceY", 1, 3, 0, 3, 7.0),
    Sketcher.Constraint("DistanceX", 0, 3, -1, 1, 67.5),
    Sketcher.Constraint("DistanceY", -1, 1, 0, 3, 7.25),
])
pocket2 = body.newObject("PartDesign::Pocket", "Pocket001")
pocket2.Profile = sketch8
pocket2.Length = 114

sketch9 = body.newObject("Sketcher::SketchObject", "Sketch008")
sketch9.AttachmentSupport = (doc.getObject("XY_Plane"), [""])
sketch9.MapMode = "FlatFace"
sketch9.AttachmentOffset = App.Placement(Vector(0, 0, -35), App.Rotation())
add_polygon(sketch9, [(-38, 25), (-38, -5), (-32, -5), (-32, 25)])
add_polygon(sketch9, [(24, 25), (24, -5), (30, -5), (30, 25)])
sketch9.addConstraint([
    Sketcher.Constraint("Vertical", 0),
    Sketcher.Constraint("Horizontal", 1),
    Sketcher.Constraint("Vertical", 2),
    Sketcher.Constraint("Horizontal", 3),
    Sketcher.Constraint("Vertical", 4),
    Sketcher.Constraint("Horizontal", 5),
    Sketcher.Constraint("Vertical", 6),
    Sketcher.Constraint("Horizontal", 7),
    Sketcher.Constraint("Horizontal", 1, 2, 4, 2),
    Sketcher.Constraint("Horizontal", 3, 2, 6, 2),
    Sketcher.Constraint("Equal", 3, 5),
    Sketcher.Constraint("DistanceX", 1, 1, 1, 2, 7.0),
    Sketcher.Constraint("DistanceY", 0, 2, 0, 1, 30.0),
    Sketcher.Constraint("DistanceY", 0, 2, -1, 1, 5.0),
    Sketcher.Constraint("DistanceX", 1, 2, 4, 2, 55.0),
    Sketcher.Constraint("DistanceX", 0, 2, -1, 1, 38.5),
])
pad7 = body.newObject("PartDesign::Pad", "Pad006")
pad7.Profile = sketch9
pad7.Length = 70

sketch10 = body.newObject("Sketcher::SketchObject", "Sketch009")
sketch10.AttachmentSupport = (doc.getObject("YZ_Plane"), [""])
sketch10.MapMode = "FlatFace"
sketch10.AttachmentOffset = App.Placement(Vector(0, 0, -62.5), App.Rotation())
add_polygon(sketch10, [(2, -50), (-5, -50), (-5, -4), (2, -4)])
add_polygon(sketch10, [(2, 4), (-5, 4), (-5, 50), (2, 50)])
sketch10.addConstraint([
    Sketcher.Constraint("Horizontal", 0),
    Sketcher.Constraint("Vertical", 1),
    Sketcher.Constraint("Horizontal", 2),
    Sketcher.Constraint("Vertical", 3),
    Sketcher.Constraint("Horizontal", 4),
    Sketcher.Constraint("Vertical", 5),
    Sketcher.Constraint("Horizontal", 6),
    Sketcher.Constraint("Vertical", 7),
    Sketcher.Constraint("Symmetric", 1, 2, 4, 2, -1),
    Sketcher.Constraint("Symmetric", 3, 2, 6, 2, -1),
    Sketcher.Constraint("DistanceX", 0, 2, 0, 1, 7.5),
    Sketcher.Constraint("DistanceX", 0, 2, -1, 1, 5.0),
    Sketcher.Constraint("DistanceY", 0, 2, 5, 2, 99.0),
    Sketcher.Constraint("DistanceY", 1, 1, 1, 2, 45.75),
])
pad8 = body.newObject("PartDesign::Pad", "Pad007")
pad8.Profile = sketch10
pad8.Length = 10
pad8.Reversed = True

doc.recompute()
